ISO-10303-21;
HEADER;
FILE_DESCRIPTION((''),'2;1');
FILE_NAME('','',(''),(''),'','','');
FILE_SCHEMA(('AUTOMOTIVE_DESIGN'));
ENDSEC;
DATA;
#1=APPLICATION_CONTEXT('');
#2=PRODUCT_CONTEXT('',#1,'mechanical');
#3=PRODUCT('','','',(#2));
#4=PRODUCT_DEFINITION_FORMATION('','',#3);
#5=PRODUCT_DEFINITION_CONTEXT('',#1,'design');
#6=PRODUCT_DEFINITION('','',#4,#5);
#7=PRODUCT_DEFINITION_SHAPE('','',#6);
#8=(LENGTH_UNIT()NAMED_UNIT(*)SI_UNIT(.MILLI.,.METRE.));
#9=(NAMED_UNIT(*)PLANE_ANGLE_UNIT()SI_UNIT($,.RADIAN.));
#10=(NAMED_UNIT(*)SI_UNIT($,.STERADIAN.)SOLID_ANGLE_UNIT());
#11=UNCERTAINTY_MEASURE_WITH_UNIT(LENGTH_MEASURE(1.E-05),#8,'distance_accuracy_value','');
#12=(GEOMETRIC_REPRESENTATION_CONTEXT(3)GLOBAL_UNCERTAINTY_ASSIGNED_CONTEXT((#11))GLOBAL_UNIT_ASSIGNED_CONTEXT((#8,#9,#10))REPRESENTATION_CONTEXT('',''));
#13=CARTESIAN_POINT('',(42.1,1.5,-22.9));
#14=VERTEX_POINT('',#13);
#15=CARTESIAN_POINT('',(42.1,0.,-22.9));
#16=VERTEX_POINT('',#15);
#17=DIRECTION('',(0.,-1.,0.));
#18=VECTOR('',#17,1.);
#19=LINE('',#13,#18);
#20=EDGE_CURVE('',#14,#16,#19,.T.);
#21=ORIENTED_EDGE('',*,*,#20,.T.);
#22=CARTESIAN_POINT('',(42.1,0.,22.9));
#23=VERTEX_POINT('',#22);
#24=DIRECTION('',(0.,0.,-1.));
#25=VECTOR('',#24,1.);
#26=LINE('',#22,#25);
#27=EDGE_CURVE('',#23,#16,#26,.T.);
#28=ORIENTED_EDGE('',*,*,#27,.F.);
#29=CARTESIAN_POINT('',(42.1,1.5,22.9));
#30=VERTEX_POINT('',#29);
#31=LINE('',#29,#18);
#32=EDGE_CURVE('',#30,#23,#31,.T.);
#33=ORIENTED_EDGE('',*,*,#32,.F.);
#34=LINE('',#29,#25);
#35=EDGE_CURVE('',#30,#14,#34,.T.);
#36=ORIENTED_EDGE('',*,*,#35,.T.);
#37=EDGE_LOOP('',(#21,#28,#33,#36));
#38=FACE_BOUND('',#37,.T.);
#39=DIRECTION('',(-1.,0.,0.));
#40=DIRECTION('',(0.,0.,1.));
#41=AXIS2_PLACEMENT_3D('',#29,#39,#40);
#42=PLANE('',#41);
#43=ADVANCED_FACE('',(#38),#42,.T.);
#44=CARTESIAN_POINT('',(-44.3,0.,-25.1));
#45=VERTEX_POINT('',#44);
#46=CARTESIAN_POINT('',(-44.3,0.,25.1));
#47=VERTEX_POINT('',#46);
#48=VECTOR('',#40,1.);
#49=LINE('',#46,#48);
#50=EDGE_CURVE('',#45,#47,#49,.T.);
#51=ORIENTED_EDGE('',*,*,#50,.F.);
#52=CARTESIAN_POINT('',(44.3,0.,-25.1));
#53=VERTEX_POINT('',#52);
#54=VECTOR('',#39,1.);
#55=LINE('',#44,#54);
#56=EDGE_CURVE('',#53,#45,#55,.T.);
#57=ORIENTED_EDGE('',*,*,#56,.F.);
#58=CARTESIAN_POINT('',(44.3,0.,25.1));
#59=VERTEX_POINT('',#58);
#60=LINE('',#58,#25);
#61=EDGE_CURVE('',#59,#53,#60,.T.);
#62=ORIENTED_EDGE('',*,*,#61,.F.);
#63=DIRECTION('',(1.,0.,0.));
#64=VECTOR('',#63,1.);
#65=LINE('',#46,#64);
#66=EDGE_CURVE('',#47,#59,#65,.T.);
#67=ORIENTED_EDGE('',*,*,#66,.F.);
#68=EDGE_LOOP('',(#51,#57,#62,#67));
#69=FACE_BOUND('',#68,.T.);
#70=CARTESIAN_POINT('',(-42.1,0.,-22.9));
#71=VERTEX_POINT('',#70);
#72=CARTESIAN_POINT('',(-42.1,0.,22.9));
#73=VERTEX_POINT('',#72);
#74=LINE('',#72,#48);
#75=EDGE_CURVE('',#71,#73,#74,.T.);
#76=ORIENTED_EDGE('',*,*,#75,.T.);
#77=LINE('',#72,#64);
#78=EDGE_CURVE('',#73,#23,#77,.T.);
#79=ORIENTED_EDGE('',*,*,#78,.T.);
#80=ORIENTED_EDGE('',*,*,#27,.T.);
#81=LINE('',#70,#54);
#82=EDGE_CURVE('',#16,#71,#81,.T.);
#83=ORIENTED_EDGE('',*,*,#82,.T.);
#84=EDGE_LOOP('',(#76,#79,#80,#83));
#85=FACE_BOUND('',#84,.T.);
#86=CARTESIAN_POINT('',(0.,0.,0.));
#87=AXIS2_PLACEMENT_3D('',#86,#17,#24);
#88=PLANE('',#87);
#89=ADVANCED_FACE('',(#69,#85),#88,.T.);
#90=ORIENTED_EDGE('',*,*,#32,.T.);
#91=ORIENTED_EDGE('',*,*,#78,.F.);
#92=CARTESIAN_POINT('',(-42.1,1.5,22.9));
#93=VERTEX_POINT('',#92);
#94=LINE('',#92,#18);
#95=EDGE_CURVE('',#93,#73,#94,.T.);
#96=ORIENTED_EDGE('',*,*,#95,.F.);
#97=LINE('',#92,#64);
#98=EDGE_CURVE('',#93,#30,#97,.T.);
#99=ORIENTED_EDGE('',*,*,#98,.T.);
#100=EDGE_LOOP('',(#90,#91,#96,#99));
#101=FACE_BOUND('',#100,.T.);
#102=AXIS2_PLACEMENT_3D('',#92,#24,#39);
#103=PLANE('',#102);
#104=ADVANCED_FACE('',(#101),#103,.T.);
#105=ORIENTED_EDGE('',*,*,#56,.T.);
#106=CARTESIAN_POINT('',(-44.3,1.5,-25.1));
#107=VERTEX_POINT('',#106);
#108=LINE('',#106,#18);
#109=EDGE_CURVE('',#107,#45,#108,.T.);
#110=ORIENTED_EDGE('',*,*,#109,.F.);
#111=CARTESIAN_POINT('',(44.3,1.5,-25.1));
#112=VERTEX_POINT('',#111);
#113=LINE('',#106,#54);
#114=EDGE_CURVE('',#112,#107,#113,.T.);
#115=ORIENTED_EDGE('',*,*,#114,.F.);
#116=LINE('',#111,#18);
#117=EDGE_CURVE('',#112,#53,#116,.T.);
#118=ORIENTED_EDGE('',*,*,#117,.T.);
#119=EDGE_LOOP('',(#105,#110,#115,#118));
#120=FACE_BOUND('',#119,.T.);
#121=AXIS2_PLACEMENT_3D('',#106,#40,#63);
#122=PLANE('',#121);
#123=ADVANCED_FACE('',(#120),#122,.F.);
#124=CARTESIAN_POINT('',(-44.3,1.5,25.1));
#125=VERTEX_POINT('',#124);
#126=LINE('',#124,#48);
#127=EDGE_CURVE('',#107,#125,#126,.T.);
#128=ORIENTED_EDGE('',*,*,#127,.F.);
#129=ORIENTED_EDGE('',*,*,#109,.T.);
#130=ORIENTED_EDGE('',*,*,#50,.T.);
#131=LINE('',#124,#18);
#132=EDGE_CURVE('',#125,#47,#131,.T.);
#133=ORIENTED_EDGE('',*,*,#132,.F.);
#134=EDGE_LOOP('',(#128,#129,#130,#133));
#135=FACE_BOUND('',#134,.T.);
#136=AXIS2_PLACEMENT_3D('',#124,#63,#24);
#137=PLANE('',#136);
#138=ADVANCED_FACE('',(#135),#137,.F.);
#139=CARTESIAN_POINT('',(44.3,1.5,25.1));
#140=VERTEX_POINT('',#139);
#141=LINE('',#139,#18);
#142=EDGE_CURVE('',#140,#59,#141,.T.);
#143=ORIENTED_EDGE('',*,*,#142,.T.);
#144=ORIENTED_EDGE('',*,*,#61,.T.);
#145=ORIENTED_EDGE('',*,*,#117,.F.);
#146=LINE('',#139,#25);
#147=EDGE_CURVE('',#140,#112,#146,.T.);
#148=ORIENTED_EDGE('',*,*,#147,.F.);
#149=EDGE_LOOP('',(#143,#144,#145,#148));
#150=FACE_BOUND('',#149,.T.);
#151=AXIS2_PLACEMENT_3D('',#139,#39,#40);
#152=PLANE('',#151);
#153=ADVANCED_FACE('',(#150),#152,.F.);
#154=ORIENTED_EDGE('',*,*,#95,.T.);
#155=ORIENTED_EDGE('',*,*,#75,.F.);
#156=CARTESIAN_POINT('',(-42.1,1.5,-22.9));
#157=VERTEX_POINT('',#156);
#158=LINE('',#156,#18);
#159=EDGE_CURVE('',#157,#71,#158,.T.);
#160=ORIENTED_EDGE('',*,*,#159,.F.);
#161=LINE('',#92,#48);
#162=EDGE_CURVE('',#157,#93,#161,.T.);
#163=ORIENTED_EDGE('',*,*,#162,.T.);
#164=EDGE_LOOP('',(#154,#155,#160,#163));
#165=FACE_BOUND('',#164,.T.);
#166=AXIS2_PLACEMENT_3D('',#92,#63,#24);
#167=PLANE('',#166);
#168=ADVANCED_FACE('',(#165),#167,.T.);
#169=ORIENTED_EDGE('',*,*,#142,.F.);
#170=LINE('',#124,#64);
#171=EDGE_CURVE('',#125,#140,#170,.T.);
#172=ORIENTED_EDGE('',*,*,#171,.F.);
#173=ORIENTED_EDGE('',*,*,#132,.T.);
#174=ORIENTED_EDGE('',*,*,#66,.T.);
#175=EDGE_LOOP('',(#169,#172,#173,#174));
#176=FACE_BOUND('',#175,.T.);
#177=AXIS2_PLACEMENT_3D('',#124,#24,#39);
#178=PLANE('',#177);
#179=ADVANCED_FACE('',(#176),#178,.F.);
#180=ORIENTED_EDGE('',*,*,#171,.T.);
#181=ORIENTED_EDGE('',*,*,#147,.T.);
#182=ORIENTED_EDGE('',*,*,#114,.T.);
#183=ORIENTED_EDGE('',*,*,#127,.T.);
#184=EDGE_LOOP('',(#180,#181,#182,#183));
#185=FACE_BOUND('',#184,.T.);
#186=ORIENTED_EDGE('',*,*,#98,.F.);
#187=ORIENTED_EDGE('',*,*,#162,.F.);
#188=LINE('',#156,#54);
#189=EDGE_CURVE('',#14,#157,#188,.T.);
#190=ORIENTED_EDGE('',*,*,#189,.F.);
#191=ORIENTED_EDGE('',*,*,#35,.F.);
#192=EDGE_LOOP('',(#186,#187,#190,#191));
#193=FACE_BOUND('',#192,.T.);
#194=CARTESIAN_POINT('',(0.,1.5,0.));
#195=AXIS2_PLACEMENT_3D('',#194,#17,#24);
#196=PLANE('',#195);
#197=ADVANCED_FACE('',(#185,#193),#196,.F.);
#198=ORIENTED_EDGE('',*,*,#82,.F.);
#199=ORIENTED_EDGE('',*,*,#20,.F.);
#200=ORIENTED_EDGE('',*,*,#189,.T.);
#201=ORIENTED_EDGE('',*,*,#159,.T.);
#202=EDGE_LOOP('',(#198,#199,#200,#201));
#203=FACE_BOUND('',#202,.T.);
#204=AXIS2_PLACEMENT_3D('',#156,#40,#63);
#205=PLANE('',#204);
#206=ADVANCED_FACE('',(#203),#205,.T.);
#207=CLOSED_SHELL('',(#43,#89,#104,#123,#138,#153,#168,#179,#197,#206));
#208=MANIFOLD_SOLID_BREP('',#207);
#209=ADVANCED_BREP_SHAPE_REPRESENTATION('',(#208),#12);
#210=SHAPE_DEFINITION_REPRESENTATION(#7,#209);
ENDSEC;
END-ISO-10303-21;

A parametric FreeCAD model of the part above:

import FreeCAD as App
import Part
import Sketcher
from FreeCAD import Vector


def add_polygon(sketch, points):
    """Adds a closed chain of lines whose ends are joined by coincident constraints."""
    first, n = sketch.GeometryCount, len(points)
    for a, b in zip(points, points[1:] + points[:1]):
        sketch.addGeometry(Part.LineSegment(App.Vector(*a, 0), App.Vector(*b, 0)), False)
    for i in range(n):
        sketch.addConstraint(Sketcher.Constraint("Coincident", first + i, 2, first + (i + 1) % n, 1))

doc = App.newDocument("Part")
params = doc.addObject("Spreadsheet::Sheet", "Params")
for row, (alias, value) in enumerate([
    ("sketch1_width", "88.6 mm"),
    ("sketch1_width2", "84.2 mm"),
    ("sketch1_height", "50.2 mm"),
    ("sketch1_height2", "45.8 mm"),
    ("pad1_length", "1.5 mm"),
], start=1):
    params.set(f"A{row}", alias)
    params.set(f"B{row}", "=" + value)
    params.setAlias(f"B{row}", alias)

body = doc.addObject("PartDesign::Body", "Body")

# Sketch on XZ plane
sketch1 = doc.addObject("Sketcher::SketchObject", "Sketch")
body.addObject(sketch1)
sketch1.AttachmentSupport = (doc.XZ_Plane, [""])
sketch1.MapMode = "FlatFace"
add_polygon(sketch1, [(-44, -25), (-44, 25), (44, 25), (44, -25)])  # lines 0-3
add_polygon(sketch1, [(42, 23), (-42, 23), (-42, -23), (42, -23)])  # lines 4-7
sketch1.addConstraint([
    Sketcher.Constraint("Vertical", 0),
    Sketcher.Constraint("Horizontal", 1),
    Sketcher.Constraint("Vertical", 2),
    Sketcher.Constraint("Horizontal", 3),
    Sketcher.Constraint("Horizontal", 4),
    Sketcher.Constraint("Vertical", 5),
    Sketcher.Constraint("Horizontal", 6),
    Sketcher.Constraint("Vertical", 7),
    Sketcher.Constraint("Symmetric", 0, 2, 2, 2, -1, 1),
    Sketcher.Constraint("Symmetric", 4, 2, 6, 2, -1, 1),
    Sketcher.Constraint("DistanceX", 1, 1, 1, 2, 88.6),
    Sketcher.Constraint("DistanceX", 4, 2, 4, 1, 84.2),
    Sketcher.Constraint("DistanceY", 0, 1, 0, 2, 50.2),
    Sketcher.Constraint("DistanceY", 5, 2, 5, 1, 45.8),
])
sketch1.setExpression("Constraints[18]", "Params.sketch1_width")
sketch1.setExpression("Constraints[19]", "Params.sketch1_width2")
sketch1.setExpression("Constraints[20]", "Params.sketch1_height")
sketch1.setExpression("Constraints[21]", "Params.sketch1_height2")
pad1 = doc.addObject("PartDesign::Pad", "Pad")
body.addObject(pad1)
pad1.Profile = sketch1
pad1.setExpression("Length", "Params.pad1_length")
pad1.Reversed = True

doc.recompute()
